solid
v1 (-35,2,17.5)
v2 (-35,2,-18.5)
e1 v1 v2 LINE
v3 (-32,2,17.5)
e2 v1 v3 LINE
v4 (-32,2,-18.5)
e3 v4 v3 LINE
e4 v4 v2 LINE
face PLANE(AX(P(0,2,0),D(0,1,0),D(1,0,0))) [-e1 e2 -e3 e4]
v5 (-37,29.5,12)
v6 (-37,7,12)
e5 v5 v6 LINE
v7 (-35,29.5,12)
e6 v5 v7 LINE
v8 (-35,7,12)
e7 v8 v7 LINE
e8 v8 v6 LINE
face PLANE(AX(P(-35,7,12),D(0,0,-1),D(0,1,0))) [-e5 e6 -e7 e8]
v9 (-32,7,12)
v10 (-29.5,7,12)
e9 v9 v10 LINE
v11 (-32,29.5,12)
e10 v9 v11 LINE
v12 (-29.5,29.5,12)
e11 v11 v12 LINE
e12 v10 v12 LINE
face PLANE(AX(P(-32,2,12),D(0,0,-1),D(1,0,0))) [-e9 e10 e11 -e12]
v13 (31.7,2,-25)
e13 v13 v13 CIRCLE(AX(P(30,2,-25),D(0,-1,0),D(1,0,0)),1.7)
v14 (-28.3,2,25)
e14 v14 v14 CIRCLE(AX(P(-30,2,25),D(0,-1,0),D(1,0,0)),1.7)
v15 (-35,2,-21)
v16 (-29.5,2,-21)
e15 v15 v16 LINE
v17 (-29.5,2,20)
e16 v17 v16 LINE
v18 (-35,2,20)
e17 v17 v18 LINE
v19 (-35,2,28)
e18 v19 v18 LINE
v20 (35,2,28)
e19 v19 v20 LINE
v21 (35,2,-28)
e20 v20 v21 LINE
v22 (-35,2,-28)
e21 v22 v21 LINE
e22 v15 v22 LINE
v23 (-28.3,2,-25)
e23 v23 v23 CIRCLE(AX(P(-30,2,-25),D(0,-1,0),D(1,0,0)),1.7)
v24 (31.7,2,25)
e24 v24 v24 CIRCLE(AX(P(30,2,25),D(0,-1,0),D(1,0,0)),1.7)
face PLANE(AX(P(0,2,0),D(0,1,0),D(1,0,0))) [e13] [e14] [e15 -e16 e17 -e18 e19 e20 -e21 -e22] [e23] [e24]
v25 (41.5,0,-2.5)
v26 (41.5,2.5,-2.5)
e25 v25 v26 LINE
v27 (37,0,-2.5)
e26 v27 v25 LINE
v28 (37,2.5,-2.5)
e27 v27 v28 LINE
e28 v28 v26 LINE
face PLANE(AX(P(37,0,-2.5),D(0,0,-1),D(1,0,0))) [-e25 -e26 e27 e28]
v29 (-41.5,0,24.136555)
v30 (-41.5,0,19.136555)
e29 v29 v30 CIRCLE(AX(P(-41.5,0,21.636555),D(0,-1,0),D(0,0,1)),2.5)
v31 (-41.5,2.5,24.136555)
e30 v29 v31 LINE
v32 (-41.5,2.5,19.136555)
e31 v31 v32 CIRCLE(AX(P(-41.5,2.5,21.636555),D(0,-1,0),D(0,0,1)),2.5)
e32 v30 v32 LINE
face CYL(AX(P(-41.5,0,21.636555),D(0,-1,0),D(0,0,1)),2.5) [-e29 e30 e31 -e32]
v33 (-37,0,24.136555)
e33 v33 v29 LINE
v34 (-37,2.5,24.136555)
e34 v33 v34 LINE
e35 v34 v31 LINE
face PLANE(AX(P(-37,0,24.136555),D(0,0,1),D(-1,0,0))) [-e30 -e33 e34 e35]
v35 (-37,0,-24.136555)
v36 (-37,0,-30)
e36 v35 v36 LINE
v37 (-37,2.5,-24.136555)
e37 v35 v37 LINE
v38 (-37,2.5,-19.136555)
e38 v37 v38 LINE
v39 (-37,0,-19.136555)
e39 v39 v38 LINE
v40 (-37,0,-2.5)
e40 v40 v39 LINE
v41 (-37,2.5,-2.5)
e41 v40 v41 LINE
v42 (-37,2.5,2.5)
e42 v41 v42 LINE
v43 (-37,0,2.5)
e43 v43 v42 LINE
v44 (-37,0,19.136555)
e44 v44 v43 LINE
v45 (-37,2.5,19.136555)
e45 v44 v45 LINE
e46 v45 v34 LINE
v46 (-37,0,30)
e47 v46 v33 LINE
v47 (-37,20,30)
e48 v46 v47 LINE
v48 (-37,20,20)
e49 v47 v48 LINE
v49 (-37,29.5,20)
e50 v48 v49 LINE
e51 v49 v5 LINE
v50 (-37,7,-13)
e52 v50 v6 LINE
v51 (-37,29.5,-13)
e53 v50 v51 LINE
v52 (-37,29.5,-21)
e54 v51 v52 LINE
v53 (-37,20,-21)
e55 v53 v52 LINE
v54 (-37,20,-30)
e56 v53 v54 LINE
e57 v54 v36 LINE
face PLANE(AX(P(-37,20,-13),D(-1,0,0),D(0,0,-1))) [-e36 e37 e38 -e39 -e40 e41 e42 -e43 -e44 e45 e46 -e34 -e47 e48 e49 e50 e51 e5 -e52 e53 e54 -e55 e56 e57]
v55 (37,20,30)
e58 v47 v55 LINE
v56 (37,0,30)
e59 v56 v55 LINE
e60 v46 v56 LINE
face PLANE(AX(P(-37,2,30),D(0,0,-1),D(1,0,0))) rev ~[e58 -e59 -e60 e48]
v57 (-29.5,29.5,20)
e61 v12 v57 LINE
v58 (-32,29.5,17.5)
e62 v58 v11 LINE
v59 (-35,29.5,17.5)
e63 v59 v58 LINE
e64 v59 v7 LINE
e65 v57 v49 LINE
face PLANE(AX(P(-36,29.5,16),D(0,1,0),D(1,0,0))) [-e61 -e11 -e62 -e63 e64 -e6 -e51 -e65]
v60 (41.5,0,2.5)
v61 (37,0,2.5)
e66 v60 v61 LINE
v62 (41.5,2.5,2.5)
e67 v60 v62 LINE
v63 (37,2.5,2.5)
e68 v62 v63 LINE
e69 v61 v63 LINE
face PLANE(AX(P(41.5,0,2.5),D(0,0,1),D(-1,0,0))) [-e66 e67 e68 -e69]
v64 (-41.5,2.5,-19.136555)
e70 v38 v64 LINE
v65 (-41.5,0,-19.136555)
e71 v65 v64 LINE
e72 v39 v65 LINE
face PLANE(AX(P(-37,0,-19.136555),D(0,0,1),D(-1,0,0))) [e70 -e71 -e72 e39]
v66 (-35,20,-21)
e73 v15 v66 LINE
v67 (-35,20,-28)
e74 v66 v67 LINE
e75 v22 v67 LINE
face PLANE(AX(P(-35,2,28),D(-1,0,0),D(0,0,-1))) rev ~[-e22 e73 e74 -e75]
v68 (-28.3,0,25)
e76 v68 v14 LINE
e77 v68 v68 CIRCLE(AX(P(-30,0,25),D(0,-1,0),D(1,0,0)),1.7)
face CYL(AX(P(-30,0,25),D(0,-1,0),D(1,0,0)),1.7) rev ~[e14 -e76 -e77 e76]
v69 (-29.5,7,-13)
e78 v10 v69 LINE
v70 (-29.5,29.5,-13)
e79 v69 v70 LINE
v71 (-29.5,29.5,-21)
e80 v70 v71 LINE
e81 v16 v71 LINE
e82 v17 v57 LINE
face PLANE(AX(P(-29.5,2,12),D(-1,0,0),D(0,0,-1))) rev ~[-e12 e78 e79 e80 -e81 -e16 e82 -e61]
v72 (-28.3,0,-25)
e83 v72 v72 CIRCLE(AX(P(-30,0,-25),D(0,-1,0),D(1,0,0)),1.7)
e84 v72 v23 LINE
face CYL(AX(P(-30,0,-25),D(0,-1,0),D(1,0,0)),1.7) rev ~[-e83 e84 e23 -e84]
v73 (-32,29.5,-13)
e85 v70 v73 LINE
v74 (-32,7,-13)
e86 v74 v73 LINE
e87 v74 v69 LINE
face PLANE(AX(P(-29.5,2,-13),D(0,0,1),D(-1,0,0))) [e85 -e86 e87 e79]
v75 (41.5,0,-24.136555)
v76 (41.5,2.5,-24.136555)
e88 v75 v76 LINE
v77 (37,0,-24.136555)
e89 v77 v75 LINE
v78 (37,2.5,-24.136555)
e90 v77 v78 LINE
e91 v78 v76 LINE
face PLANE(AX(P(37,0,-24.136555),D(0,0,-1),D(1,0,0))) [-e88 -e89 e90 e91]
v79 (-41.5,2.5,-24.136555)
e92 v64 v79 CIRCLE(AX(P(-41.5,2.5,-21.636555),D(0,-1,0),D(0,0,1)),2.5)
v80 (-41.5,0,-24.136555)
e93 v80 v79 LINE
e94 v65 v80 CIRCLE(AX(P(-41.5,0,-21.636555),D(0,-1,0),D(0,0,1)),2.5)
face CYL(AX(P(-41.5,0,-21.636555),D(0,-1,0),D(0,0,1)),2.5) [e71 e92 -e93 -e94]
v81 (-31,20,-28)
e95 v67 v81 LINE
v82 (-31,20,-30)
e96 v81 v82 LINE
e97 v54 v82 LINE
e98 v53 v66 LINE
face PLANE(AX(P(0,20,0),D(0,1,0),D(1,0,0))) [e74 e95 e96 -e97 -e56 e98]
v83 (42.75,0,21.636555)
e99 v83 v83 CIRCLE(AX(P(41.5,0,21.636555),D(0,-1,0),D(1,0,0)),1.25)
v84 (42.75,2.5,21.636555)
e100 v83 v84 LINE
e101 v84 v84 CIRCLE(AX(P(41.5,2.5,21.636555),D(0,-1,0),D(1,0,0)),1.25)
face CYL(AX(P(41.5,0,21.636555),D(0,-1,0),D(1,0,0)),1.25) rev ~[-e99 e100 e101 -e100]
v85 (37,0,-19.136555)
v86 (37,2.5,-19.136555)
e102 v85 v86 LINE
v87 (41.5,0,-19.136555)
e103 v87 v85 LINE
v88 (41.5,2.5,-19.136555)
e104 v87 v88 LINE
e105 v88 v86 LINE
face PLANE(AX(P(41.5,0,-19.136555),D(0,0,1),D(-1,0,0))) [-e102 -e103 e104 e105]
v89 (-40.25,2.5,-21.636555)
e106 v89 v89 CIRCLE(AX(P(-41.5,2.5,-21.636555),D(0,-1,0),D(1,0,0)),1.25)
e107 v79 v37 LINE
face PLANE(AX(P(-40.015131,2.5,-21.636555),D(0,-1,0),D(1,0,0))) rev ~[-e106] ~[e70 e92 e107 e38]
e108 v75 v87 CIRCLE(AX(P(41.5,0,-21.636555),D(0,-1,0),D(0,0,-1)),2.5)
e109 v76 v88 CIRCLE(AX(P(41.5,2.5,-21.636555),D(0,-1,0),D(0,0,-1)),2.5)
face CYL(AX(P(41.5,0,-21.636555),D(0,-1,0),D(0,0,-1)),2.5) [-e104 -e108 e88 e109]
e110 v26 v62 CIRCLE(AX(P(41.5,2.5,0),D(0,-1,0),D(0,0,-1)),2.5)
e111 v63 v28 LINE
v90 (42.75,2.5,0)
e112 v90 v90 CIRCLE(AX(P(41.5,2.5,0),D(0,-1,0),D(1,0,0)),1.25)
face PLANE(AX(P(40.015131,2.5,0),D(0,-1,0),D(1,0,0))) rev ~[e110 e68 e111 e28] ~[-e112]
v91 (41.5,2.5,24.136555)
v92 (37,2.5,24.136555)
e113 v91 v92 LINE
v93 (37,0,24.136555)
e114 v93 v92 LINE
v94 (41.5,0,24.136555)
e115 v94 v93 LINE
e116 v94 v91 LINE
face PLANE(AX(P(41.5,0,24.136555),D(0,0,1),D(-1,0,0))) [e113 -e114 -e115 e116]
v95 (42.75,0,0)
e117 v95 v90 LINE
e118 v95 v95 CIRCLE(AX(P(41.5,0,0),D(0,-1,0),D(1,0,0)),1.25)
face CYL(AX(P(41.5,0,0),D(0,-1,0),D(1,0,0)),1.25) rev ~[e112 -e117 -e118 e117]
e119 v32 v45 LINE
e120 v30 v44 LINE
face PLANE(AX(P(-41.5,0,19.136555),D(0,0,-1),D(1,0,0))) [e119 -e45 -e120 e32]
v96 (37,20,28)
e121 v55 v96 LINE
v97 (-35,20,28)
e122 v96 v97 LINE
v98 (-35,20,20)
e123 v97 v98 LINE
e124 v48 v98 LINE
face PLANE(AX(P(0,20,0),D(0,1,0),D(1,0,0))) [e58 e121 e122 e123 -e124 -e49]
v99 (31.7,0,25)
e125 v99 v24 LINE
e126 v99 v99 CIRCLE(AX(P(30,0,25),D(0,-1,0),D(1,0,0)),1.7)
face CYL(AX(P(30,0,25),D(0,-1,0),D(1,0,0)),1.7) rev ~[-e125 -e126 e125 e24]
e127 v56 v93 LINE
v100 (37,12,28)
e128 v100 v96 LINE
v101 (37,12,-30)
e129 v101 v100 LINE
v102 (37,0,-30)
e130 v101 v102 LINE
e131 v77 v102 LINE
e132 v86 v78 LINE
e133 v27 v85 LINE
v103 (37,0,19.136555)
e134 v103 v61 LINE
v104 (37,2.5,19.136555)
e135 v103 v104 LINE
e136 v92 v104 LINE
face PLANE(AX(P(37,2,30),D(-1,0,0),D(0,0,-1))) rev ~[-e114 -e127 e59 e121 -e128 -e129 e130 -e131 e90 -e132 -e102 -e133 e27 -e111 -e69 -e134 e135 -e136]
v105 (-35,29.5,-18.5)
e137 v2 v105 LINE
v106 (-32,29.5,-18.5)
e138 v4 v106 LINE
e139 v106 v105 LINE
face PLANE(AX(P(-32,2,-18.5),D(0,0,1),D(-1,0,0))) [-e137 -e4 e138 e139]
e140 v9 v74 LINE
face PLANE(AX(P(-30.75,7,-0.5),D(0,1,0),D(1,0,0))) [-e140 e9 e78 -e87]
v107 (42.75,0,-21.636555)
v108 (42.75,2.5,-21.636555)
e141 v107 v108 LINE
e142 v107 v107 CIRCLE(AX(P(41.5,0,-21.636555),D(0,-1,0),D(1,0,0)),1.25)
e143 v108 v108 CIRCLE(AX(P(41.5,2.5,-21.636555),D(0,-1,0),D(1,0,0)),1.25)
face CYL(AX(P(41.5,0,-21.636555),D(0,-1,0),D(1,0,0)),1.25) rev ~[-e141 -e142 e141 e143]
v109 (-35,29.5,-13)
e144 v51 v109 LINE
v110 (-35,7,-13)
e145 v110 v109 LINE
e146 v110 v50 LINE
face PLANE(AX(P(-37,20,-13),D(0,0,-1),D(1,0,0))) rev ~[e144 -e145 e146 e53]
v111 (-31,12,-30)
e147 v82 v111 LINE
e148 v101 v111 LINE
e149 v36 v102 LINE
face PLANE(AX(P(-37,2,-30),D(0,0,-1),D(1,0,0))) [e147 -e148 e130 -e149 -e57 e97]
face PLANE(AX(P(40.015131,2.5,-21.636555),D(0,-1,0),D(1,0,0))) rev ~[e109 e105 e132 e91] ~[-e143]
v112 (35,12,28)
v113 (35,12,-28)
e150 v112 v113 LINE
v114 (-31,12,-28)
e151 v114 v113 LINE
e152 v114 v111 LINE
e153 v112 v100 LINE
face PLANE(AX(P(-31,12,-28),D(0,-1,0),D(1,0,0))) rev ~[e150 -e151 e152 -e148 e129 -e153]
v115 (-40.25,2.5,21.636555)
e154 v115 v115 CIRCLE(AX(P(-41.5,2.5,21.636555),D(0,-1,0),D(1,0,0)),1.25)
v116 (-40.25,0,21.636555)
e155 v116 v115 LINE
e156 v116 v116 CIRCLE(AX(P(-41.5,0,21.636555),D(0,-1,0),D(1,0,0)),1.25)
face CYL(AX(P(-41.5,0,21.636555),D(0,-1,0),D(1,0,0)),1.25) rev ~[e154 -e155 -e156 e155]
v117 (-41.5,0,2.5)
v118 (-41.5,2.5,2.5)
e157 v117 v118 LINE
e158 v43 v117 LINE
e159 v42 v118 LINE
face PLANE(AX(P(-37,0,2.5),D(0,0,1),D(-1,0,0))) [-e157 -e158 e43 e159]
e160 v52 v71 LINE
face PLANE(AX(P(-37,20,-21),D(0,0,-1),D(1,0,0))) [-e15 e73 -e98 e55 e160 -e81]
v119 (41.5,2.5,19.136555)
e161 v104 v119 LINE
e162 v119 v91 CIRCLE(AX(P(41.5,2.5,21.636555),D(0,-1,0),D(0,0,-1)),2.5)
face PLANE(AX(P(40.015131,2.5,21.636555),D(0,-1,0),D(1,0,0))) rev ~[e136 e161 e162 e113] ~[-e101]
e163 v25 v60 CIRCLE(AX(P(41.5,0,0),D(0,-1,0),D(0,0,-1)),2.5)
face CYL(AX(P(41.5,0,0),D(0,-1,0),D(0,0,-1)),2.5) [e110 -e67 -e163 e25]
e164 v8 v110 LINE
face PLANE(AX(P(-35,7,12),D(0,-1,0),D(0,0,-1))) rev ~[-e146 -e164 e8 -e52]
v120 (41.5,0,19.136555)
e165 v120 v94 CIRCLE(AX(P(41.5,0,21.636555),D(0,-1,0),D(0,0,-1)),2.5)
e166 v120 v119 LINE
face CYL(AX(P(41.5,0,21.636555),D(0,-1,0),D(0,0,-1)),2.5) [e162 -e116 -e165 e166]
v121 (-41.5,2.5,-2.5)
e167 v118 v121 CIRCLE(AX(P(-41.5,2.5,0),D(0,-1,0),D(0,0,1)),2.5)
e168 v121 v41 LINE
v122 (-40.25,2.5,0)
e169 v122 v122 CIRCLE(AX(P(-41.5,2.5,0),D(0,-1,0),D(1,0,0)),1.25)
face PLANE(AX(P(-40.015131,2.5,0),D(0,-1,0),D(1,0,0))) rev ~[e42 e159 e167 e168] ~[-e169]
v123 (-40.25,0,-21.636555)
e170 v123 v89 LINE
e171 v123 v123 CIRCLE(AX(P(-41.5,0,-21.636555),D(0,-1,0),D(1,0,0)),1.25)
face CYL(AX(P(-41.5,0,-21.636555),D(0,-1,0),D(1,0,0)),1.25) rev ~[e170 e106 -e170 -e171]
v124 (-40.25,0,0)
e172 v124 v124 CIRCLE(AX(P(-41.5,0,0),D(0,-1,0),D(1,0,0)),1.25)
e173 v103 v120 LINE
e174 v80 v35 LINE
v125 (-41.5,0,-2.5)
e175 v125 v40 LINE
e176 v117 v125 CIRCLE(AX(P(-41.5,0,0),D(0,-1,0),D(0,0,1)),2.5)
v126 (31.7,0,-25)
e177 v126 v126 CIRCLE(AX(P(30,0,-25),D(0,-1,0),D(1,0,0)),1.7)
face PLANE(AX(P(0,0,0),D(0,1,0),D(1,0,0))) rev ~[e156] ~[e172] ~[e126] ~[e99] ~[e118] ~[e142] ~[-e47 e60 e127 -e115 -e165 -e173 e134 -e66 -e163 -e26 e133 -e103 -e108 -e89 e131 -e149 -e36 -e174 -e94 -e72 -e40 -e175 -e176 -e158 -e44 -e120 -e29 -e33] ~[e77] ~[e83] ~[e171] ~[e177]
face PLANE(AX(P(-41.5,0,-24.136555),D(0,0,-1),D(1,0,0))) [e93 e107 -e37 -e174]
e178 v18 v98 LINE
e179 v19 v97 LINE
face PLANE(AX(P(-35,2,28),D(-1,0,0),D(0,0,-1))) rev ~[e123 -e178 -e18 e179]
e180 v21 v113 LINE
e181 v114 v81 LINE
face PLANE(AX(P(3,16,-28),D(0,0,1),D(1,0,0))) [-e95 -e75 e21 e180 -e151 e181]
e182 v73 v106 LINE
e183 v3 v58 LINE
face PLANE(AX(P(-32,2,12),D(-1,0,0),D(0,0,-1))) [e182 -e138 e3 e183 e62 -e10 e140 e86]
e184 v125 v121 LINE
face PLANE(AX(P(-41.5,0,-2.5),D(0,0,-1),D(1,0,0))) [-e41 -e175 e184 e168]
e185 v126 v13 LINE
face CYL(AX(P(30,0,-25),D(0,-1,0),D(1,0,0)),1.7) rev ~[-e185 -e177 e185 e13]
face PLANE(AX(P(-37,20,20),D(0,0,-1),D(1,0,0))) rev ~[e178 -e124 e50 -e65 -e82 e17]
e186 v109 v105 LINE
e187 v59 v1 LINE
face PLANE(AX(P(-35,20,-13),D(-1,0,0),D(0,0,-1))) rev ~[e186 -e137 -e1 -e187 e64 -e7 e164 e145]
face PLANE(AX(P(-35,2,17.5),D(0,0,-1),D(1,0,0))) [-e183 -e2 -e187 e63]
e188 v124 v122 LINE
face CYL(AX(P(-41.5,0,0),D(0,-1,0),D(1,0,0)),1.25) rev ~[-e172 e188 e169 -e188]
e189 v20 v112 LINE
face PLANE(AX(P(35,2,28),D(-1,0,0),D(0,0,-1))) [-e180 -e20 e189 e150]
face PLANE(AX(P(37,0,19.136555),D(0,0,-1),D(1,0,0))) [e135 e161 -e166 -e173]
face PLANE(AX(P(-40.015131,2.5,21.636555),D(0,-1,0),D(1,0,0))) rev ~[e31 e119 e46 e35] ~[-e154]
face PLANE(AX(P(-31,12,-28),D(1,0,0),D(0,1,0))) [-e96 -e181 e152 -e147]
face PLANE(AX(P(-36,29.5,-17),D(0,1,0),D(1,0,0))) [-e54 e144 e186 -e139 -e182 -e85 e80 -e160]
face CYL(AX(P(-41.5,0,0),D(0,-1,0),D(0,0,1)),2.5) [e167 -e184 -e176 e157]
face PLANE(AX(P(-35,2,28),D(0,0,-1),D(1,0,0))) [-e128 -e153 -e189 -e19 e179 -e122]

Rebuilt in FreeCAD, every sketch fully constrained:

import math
import FreeCAD as App
import Part
import Sketcher
Q = App.Units.Quantity

doc = App.newDocument("Part")
body = doc.addObject("PartDesign::Body", "Body")

sketch1 = doc.addObject("Sketcher::SketchObject", "Sketch")
body.addObject(sketch1)
sketch1.AttachmentSupport = (doc.XZ_Plane, [""])
sketch1.MapMode = "FlatFace"
sketch1.addGeometry([
    Part.LineSegment(App.Vector(-37, -30, 0), App.Vector(-37, 30, 0)),
    Part.LineSegment(App.Vector(-37, 30, 0), App.Vector(37, 30, 0)),
    Part.LineSegment(App.Vector(37, 30, 0), App.Vector(37, -30, 0)),
    Part.LineSegment(App.Vector(37, -30, 0), App.Vector(-37, -30, 0)),
], False)
sketch1.addConstraint([
    Sketcher.Constraint("Coincident", 0, 2, 1, 1),
    Sketcher.Constraint("Coincident", 1, 2, 2, 1),
    Sketcher.Constraint("Coincident", 2, 2, 3, 1),
    Sketcher.Constraint("Coincident", 3, 2, 0, 1),
    Sketcher.Constraint("Vertical", 0),
    Sketcher.Constraint("Horizontal", 1),
    Sketcher.Constraint("Vertical", 2),
    Sketcher.Constraint("Horizontal", 3),
    Sketcher.Constraint("Symmetric", 0, 2, 2, 2, -1, 1),
    Sketcher.Constraint("DistanceX", 1, 1, 1, 2, Q("74 mm")),
    Sketcher.Constraint("DistanceY", 0, 1, 0, 2, Q("60 mm")),
])
pad1 = doc.addObject("PartDesign::Pad", "Pad")
body.addObject(pad1)
pad1.Profile = sketch1
pad1.Length = 2
pad1.Reversed = True

sketch2 = doc.addObject("Sketcher::SketchObject", "Sketch001")
body.addObject(sketch2)
sketch2.AttachmentSupport = (doc.XZ_Plane, [""])
sketch2.MapMode = "FlatFace"
sketch2.AttachmentOffset = App.Placement(App.Vector(0, 0, -2), App.Rotation())
sketch2.addGeometry([
    Part.LineSegment(App.Vector(-37, -30, 0), App.Vector(-37, 30, 0)),
    Part.LineSegment(App.Vector(-37, 30, 0), App.Vector(37, 30, 0)),
    Part.LineSegment(App.Vector(37, 30, 0), App.Vector(37, -30, 0)),
    Part.LineSegment(App.Vector(37, -30, 0), App.Vector(-37, -30, 0)),
    Part.LineSegment(App.Vector(35, 28, 0), App.Vector(-35, 28, 0)),
    Part.LineSegment(App.Vector(-35, 28, 0), App.Vector(-35, -28, 0)),
    Part.LineSegment(App.Vector(-35, -28, 0), App.Vector(35, -28, 0)),
    Part.LineSegment(App.Vector(35, -28, 0), App.Vector(35, 28, 0)),
], False)
sketch2.addConstraint([
    Sketcher.Constraint("Coincident", 0, 2, 1, 1),
    Sketcher.Constraint("Coincident", 1, 2, 2, 1),
    Sketcher.Constraint("Coincident", 2, 2, 3, 1),
    Sketcher.Constraint("Coincident", 3, 2, 0, 1),
    Sketcher.Constraint("Coincident", 4, 2, 5, 1),
    Sketcher.Constraint("Coincident", 5, 2, 6, 1),
    Sketcher.Constraint("Coincident", 6, 2, 7, 1),
    Sketcher.Constraint("Coincident", 7, 2, 4, 1),
    Sketcher.Constraint("Vertical", 0),
    Sketcher.Constraint("Horizontal", 1),
    Sketcher.Constraint("Vertical", 2),
    Sketcher.Constraint("Horizontal", 3),
    Sketcher.Constraint("Horizontal", 4),
    Sketcher.Constraint("Vertical", 5),
    Sketcher.Constraint("Horizontal", 6),
    Sketcher.Constraint("Vertical", 7),
    Sketcher.Constraint("Symmetric", 0, 2, 2, 2, -1, 1),
    Sketcher.Constraint("Symmetric", 4, 2, 6, 2, -1, 1),
    Sketcher.Constraint("DistanceX", 1, 1, 1, 2, Q("74 mm")),
    Sketcher.Constraint("DistanceX", 4, 2, 4, 1, Q("70 mm")),
    Sketcher.Constraint("DistanceY", 0, 1, 0, 2, Q("60 mm")),
    Sketcher.Constraint("DistanceY", 5, 2, 5, 1, Q("56 mm")),
])
pad2 = doc.addObject("PartDesign::Pad", "Pad001")
body.addObject(pad2)
pad2.Profile = sketch2
pad2.Length = 18
pad2.Reversed = True

sketch3 = doc.addObject("Sketcher::SketchObject", "Sketch002")
body.addObject(sketch3)
sketch3.AttachmentSupport = (doc.XZ_Plane, [""])
sketch3.MapMode = "FlatFace"
sketch3.addGeometry([
    Part.Circle(App.Vector(-30, 25, 0), App.Vector(0, 0, 1), 1.7),
    Part.Circle(App.Vector(30, 25, 0), App.Vector(0, 0, 1), 1.7),
    Part.Circle(App.Vector(30, -25, 0), App.Vector(0, 0, 1), 1.7),
    Part.Circle(App.Vector(-30, -25, 0), App.Vector(0, 0, 1), 1.7),
], False)
sketch3.addConstraint([
    Sketcher.Constraint("Equal", 0, 1),
    Sketcher.Constraint("Equal", 1, 2),
    Sketcher.Constraint("Equal", 2, 3),
    Sketcher.Constraint("Symmetric", 0, 3, 2, 3, -1, 1),
    Sketcher.Constraint("Symmetric", 1, 3, 3, 3, -1, 1),
    Sketcher.Constraint("Symmetric", 0, 3, 1, 3, -2),
    Sketcher.Constraint("Diameter", 0, Q("3.4 mm")),
    Sketcher.Constraint("DistanceX", 0, 3, -1, 1, Q("30 mm")),
    Sketcher.Constraint("DistanceY", -1, 1, 0, 3, Q("25 mm")),
])
pocket1 = doc.addObject("PartDesign::Pocket", "Pocket")
body.addObject(pocket1)
pocket1.Profile = sketch3
pocket1.Length = 8

sketch4 = doc.addObject("Sketcher::SketchObject", "Sketch003")
body.addObject(sketch4)
sketch4.AttachmentSupport = (doc.XY_Plane, [""])
sketch4.MapMode = "FlatFace"
sketch4.AttachmentOffset = App.Placement(App.Vector(0, 0, -28), App.Rotation())
sketch4.addGeometry([
    Part.LineSegment(App.Vector(-31, 20, 0), App.Vector(-31, 12, 0)),
    Part.LineSegment(App.Vector(-31, 12, 0), App.Vector(37, 12, 0)),
    Part.LineSegment(App.Vector(37, 12, 0), App.Vector(37, 20, 0)),
    Part.LineSegment(App.Vector(37, 20, 0), App.Vector(-31, 20, 0)),
], False)
sketch4.addConstraint([
    Sketcher.Constraint("Coincident", 0, 2, 1, 1),
    Sketcher.Constraint("Coincident", 1, 2, 2, 1),
    Sketcher.Constraint("Coincident", 2, 2, 3, 1),
    Sketcher.Constraint("Coincident", 3, 2, 0, 1),
    Sketcher.Constraint("Vertical", 0),
    Sketcher.Constraint("Horizontal", 1),
    Sketcher.Constraint("Vertical", 2),
    Sketcher.Constraint("Horizontal", 3),
    Sketcher.Constraint("DistanceX", 1, 1, 1, 2, Q("68 mm")),
    Sketcher.Constraint("DistanceY", 0, 2, 0, 1, Q("8 mm")),
    Sketcher.Constraint("DistanceX", 0, 2, -1, 1, Q("31 mm")),
    Sketcher.Constraint("DistanceY", -1, 1, 0, 2, Q("12 mm")),
])
pocket2 = doc.addObject("PartDesign::Pocket", "Pocket001")
body.addObject(pocket2)
pocket2.Profile = sketch4
pocket2.Type = "TwoLengths"
pocket2.Length = 56
pocket2.Length2 = 17
pocket2.Reversed = True

sketch5 = doc.addObject("Sketcher::SketchObject", "Sketch004")
body.addObject(sketch5)
sketch5.AttachmentSupport = (doc.XZ_Plane, [""])
sketch5.MapMode = "FlatFace"
sketch5.AttachmentOffset = App.Placement(App.Vector(0, 0, -2), App.Rotation())
sketch5.addGeometry([
    Part.LineSegment(App.Vector(-29.5, -21, 0), App.Vector(-35, -21, 0)),
    Part.LineSegment(App.Vector(-35, -21, 0), App.Vector(-35, -18.5, 0)),
    Part.LineSegment(App.Vector(-35, -18.5, 0), App.Vector(-32, -18.5, 0)),
    Part.LineSegment(App.Vector(-32, -18.5, 0), App.Vector(-32, -13, 0)),
    Part.LineSegment(App.Vector(-32, -13, 0), App.Vector(-29.5, -13, 0)),
    Part.LineSegment(App.Vector(-29.5, -13, 0), App.Vector(-29.5, -21, 0)),
    Part.LineSegment(App.Vector(-29.5, 20, 0), App.Vector(-29.5, 12, 0)),
    Part.LineSegment(App.Vector(-29.5, 12, 0), App.Vector(-32, 12, 0)),
    Part.LineSegment(App.Vector(-32, 12, 0), App.Vector(-32, 17.5, 0)),
    Part.LineSegment(App.Vector(-32, 17.5, 0), App.Vector(-35, 17.5, 0)),
    Part.LineSegment(App.Vector(-35, 17.5, 0), App.Vector(-35, 20, 0)),
    Part.LineSegment(App.Vector(-35, 20, 0), App.Vector(-29.5, 20, 0)),
], False)
sketch5.addConstraint([
    Sketcher.Constraint("Coincident", 0, 2, 1, 1),
    Sketcher.Constraint("Coincident", 1, 2, 2, 1),
    Sketcher.Constraint("Coincident", 2, 2, 3, 1),
    Sketcher.Constraint("Coincident", 3, 2, 4, 1),
    Sketcher.Constraint("Coincident", 4, 2, 5, 1),
    Sketcher.Constraint("Coincident", 5, 2, 0, 1),
    Sketcher.Constraint("Coincident", 6, 2, 7, 1),
    Sketcher.Constraint("Coincident", 7, 2, 8, 1),
    Sketcher.Constraint("Coincident", 8, 2, 9, 1),
    Sketcher.Constraint("Coincident", 9, 2, 10, 1),
    Sketcher.Constraint("Coincident", 10, 2, 11, 1),
    Sketcher.Constraint("Coincident", 11, 2, 6, 1),
    Sketcher.Constraint("Horizontal", 0),
    Sketcher.Constraint("Vertical", 1),
    Sketcher.Constraint("Horizontal", 2),
    Sketcher.Constraint("Vertical", 3),
    Sketcher.Constraint("Horizontal", 4),
    Sketcher.Constraint("Vertical", 5),
    Sketcher.Constraint("Vertical", 6),
    Sketcher.Constraint("Horizontal", 7),
    Sketcher.Constraint("Vertical", 8),
    Sketcher.Constraint("Horizontal", 9),
    Sketcher.Constraint("Vertical", 10),
    Sketcher.Constraint("Horizontal", 11),
    Sketcher.Constraint("Vertical", 5, 2, 6, 2),
    Sketcher.Constraint("Vertical", 3, 2, 7, 2),
    Sketcher.Constraint("Vertical", 1, 2, 9, 2),
    Sketcher.Constraint("Equal", 7, 1),
    Sketcher.Constraint("Equal", 11, 3),
    Sketcher.Constraint("Equal", 5, 6),
    Sketcher.Constraint("Equal", 3, 8),
    Sketcher.Constraint("DistanceX", 2, 1, 2, 2, Q("3 mm")),
    Sketcher.Constraint("DistanceY", 5, 2, 5, 1, Q("8 mm")),
    Sketcher.Constraint("DistanceX", 0, 2, -1, 1, Q("35 mm")),
    Sketcher.Constraint("DistanceY", 0, 2, -1, 1, Q("21 mm")),
    Sketcher.Constraint("DistanceY", -1, 1, 6, 2, Q("12 mm")),
])
pad3 = doc.addObject("PartDesign::Pad", "Pad002")
body.addObject(pad3)
pad3.Profile = sketch5
pad3.Length = 27.5
pad3.Reversed = True

sketch6 = doc.addObject("Sketcher::SketchObject", "Sketch005")
body.addObject(sketch6)
sketch6.AttachmentSupport = (doc.XZ_Plane, [""])
sketch6.MapMode = "FlatFace"
sketch6.AttachmentOffset = App.Placement(App.Vector(0, 0, -2), App.Rotation())
sketch6.addGeometry([
    Part.LineSegment(App.Vector(-32, -13, 0), App.Vector(-32, 12, 0)),
    Part.LineSegment(App.Vector(-32, 12, 0), App.Vector(-29.5, 12, 0)),
    Part.LineSegment(App.Vector(-29.5, 12, 0), App.Vector(-29.5, -13, 0)),
    Part.LineSegment(App.Vector(-29.5, -13, 0), App.Vector(-32, -13, 0)),
], False)
sketch6.addConstraint([
    Sketcher.Constraint("Coincident", 0, 2, 1, 1),
    Sketcher.Constraint("Coincident", 1, 2, 2, 1),
    Sketcher.Constraint("Coincident", 2, 2, 3, 1),
    Sketcher.Constraint("Coincident", 3, 2, 0, 1),
    Sketcher.Constraint("Vertical", 0),
    Sketcher.Constraint("Horizontal", 1),
    Sketcher.Constraint("Vertical", 2),
    Sketcher.Constraint("Horizontal", 3),
    Sketcher.Constraint("DistanceY", 0, 1, 0, 2, Q("25 mm")),
    Sketcher.Constraint("DistanceX", 1, 1, 1, 2, Q("2.5 mm")),
    Sketcher.Constraint("DistanceX", 0, 2, -1, 1, Q("32 mm")),
    Sketcher.Constraint("DistanceY", -1, 1, 0, 2, Q("12 mm")),
])
pad4 = doc.addObject("PartDesign::Pad", "Pad003")
body.addObject(pad4)
pad4.Profile = sketch6
pad4.Length = 5
pad4.Reversed = True

sketch7 = doc.addObject("Sketcher::SketchObject", "Sketch006")
body.addObject(sketch7)
sketch7.AttachmentSupport = (doc.YZ_Plane, [""])
sketch7.MapMode = "FlatFace"
sketch7.AttachmentOffset = App.Placement(App.Vector(0, 0, -35), App.Rotation())
sketch7.addGeometry([
    Part.LineSegment(App.Vector(20, 12, 0), App.Vector(7, 12, 0)),
    Part.LineSegment(App.Vector(7, 12, 0), App.Vector(7, -13, 0)),
    Part.LineSegment(App.Vector(7, -13, 0), App.Vector(20, -13, 0)),
    Part.LineSegment(App.Vector(20, -13, 0), App.Vector(20, 12, 0)),
], False)
sketch7.addConstraint([
    Sketcher.Constraint("Coincident", 0, 2, 1, 1),
    Sketcher.Constraint("Coincident", 1, 2, 2, 1),
    Sketcher.Constraint("Coincident", 2, 2, 3, 1),
    Sketcher.Constraint("Coincident", 3, 2, 0, 1),
    Sketcher.Constraint("Horizontal", 0),
    Sketcher.Constraint("Vertical", 1),
    Sketcher.Constraint("Horizontal", 2),
    Sketcher.Constraint("Vertical", 3),
    Sketcher.Constraint("DistanceX", 0, 2, 0, 1, Q("13 mm")),
    Sketcher.Constraint("DistanceY", 1, 2, 1, 1, Q("25 mm")),
    Sketcher.Constraint("DistanceX", -1, 1, 0, 2, Q("7 mm")),
    Sketcher.Constraint("DistanceY", -1, 1, 0, 2, Q("12 mm")),
])
pocket3 = doc.addObject("PartDesign::Pocket", "Pocket002")
body.addObject(pocket3)
pocket3.Profile = sketch7
pocket3.Length = 5

sketch8 = doc.addObject("Sketcher::SketchObject", "Sketch007")
body.addObject(sketch8)
sketch8.AttachmentSupport = (doc.XZ_Plane, [""])
sketch8.MapMode = "FlatFace"
sketch8.AttachmentOffset = App.Placement(App.Vector(0, 0, -20), App.Rotation())
sketch8.addGeometry([
    Part.LineSegment(App.Vector(-37, -21, 0), App.Vector(-37, -13, 0)),
    Part.LineSegment(App.Vector(-37, -13, 0), App.Vector(-35, -13, 0)),
    Part.LineSegment(App.Vector(-35, -13, 0), App.Vector(-35, -21, 0)),
    Part.LineSegment(App.Vector(-35, -21, 0), App.Vector(-37, -21, 0)),
    Part.LineSegment(App.Vector(-37, 12, 0), App.Vector(-37, 20, 0)),
    Part.LineSegment(App.Vector(-37, 20, 0), App.Vector(-35, 20, 0)),
    Part.LineSegment(App.Vector(-35, 20, 0), App.Vector(-35, 12, 0)),
    Part.LineSegment(App.Vector(-35, 12, 0), App.Vector(-37, 12, 0)),
], False)
sketch8.addConstraint([
    Sketcher.Constraint("Coincident", 0, 2, 1, 1),
    Sketcher.Constraint("Coincident", 1, 2, 2, 1),
    Sketcher.Constraint("Coincident", 2, 2, 3, 1),
    Sketcher.Constraint("Coincident", 3, 2, 0, 1),
    Sketcher.Constraint("Coincident", 4, 2, 5, 1),
    Sketcher.Constraint("Coincident", 5, 2, 6, 1),
    Sketcher.Constraint("Coincident", 6, 2, 7, 1),
    Sketcher.Constraint("Coincident", 7, 2, 4, 1),
    Sketcher.Constraint("Vertical", 0),
    Sketcher.Constraint("Horizontal", 1),
    Sketcher.Constraint("Vertical", 2),
    Sketcher.Constraint("Horizontal", 3),
    Sketcher.Constraint("Vertical", 4),
    Sketcher.Constraint("Horizontal", 5),
    Sketcher.Constraint("Vertical", 6),
    Sketcher.Constraint("Horizontal", 7),
    Sketcher.Constraint("Vertical", 3, 2, 4, 2),
    Sketcher.Constraint("Vertical", 2, 2, 5, 2),
    Sketcher.Constraint("Equal", 2, 4),
    Sketcher.Constraint("DistanceX", 1, 1, 1, 2, Q("2 mm")),
    Sketcher.Constraint("DistanceY", 0, 1, 0, 2, Q("8 mm")),
    Sketcher.Constraint("DistanceX", 0, 2, -1, 1, Q("37 mm")),
    Sketcher.Constraint("DistanceY", 0, 2, -1, 1, Q("13 mm")),
    Sketcher.Constraint("DistanceY", -1, 1, 4, 2, Q("20 mm")),
])
pad5 = doc.addObject("PartDesign::Pad", "Pad004")
body.addObject(pad5)
pad5.Profile = sketch8
pad5.Length = 9.5
pad5.Reversed = True

sketch9 = doc.addObject("Sketcher::SketchObject", "Sketch008")
body.addObject(sketch9)
sketch9.AttachmentSupport = (doc.XZ_Plane, [""])
sketch9.MapMode = "FlatFace"
sketch9.addGeometry([
    Part.LineSegment(App.Vector(-37, -24.1, 0), App.Vector(-37, -19.1, 0)),
    Part.LineSegment(App.Vector(-37, -19.1, 0), App.Vector(-41.5, -19.1, 0)),
    Part.ArcOfCircle(Part.Circle(App.Vector(-41.5, -21.6, 0), App.Vector(0, 0, 1), 2.5), math.radians(90), math.radians(270)),
    Part.LineSegment(App.Vector(-41.5, -24.1, 0), App.Vector(-37, -24.1, 0)),
    Part.Circle(App.Vector(-41.5, -21.6, 0), App.Vector(0, 0, 1), 1.2),
    Part.LineSegment(App.Vector(-37, -2.5, 0), App.Vector(-37, 2.5, 0)),
    Part.LineSegment(App.Vector(-37, 2.5, 0), App.Vector(-41.5, 2.5, 0)),
    Part.ArcOfCircle(Part.Circle(App.Vector(-41.5, 0, 0), App.Vector(0, 0, 1), 2.5), math.radians(90), math.radians(270)),
    Part.LineSegment(App.Vector(-41.5, -2.5, 0), App.Vector(-37, -2.5, 0)),
    Part.Circle(App.Vector(-41.5, 0, 0), App.Vector(0, 0, 1), 1.2),
    Part.LineSegment(App.Vector(-37, 19.1, 0), App.Vector(-37, 24.1, 0)),
    Part.LineSegment(App.Vector(-37, 24.1, 0), App.Vector(-41.5, 24.1, 0)),
    Part.ArcOfCircle(Part.Circle(App.Vector(-41.5, 21.6, 0), App.Vector(0, 0, 1), 2.5), math.radians(90), math.radians(270)),
    Part.LineSegment(App.Vector(-41.5, 19.1, 0), App.Vector(-37, 19.1, 0)),
    Part.Circle(App.Vector(-41.5, 21.6, 0), App.Vector(0, 0, 1), 1.2),
    Part.LineSegment(App.Vector(37, 24.1, 0), App.Vector(37, 19.1, 0)),
    Part.LineSegment(App.Vector(37, 19.1, 0), App.Vector(41.5, 19.1, 0)),
    Part.ArcOfCircle(Part.Circle(App.Vector(41.5, 21.6, 0), App.Vector(0, 0, 1), 2.5), math.radians(-90), math.radians(90)),
    Part.LineSegment(App.Vector(41.5, 24.1, 0), App.Vector(37, 24.1, 0)),
    Part.Circle(App.Vector(41.5, 21.6, 0), App.Vector(0, 0, 1), 1.2),
    Part.LineSegment(App.Vector(37, 2.5, 0), App.Vector(37, -2.5, 0)),
    Part.LineSegment(App.Vector(37, -2.5, 0), App.Vector(41.5, -2.5, 0)),
    Part.ArcOfCircle(Part.Circle(App.Vector(41.5, 0, 0), App.Vector(0, 0, 1), 2.5), math.radians(-90), math.radians(90)),
    Part.LineSegment(App.Vector(41.5, 2.5, 0), App.Vector(37, 2.5, 0)),
    Part.Circle(App.Vector(41.5, 0, 0), App.Vector(0, 0, 1), 1.2),
    Part.LineSegment(App.Vector(37, -19.1, 0), App.Vector(37, -24.1, 0)),
    Part.LineSegment(App.Vector(37, -24.1, 0), App.Vector(41.5, -24.1, 0)),
    Part.ArcOfCircle(Part.Circle(App.Vector(41.5, -21.6, 0), App.Vector(0, 0, 1), 2.5), math.radians(-90), math.radians(90)),
    Part.LineSegment(App.Vector(41.5, -19.1, 0), App.Vector(37, -19.1, 0)),
    Part.Circle(App.Vector(41.5, -21.6, 0), App.Vector(0, 0, 1), 1.2),
], False)
sketch9.addConstraint([
    Sketcher.Constraint("Coincident", 0, 2, 1, 1),
    Sketcher.Constraint("Tangent", 1, 2, 2, 1),
    Sketcher.Constraint("Tangent", 2, 2, 3, 1),
    Sketcher.Constraint("Coincident", 3, 2, 0, 1),
    Sketcher.Constraint("Coincident", 5, 2, 6, 1),
    Sketcher.Constraint("Tangent", 6, 2, 7, 1),
    Sketcher.Constraint("Tangent", 7, 2, 8, 1),
    Sketcher.Constraint("Coincident", 8, 2, 5, 1),
    Sketcher.Constraint("Coincident", 10, 2, 11, 1),
    Sketcher.Constraint("Tangent", 11, 2, 12, 1),
    Sketcher.Constraint("Tangent", 12, 2, 13, 1),
    Sketcher.Constraint("Coincident", 13, 2, 10, 1),
    Sketcher.Constraint("Coincident", 15, 2, 16, 1),
    Sketcher.Constraint("Tangent", 16, 2, 17, 1),
    Sketcher.Constraint("Tangent", 17, 2, 18, 1),
    Sketcher.Constraint("Coincident", 18, 2, 15, 1),
    Sketcher.Constraint("Coincident", 20, 2, 21, 1),
    Sketcher.Constraint("Tangent", 21, 2, 22, 1),
    Sketcher.Constraint("Tangent", 22, 2, 23, 1),
    Sketcher.Constraint("Coincident", 23, 2, 20, 1),
    Sketcher.Constraint("Coincident", 25, 2, 26, 1),
    Sketcher.Constraint("Tangent", 26, 2, 27, 1),
    Sketcher.Constraint("Tangent", 27, 2, 28, 1),
    Sketcher.Constraint("Coincident", 28, 2, 25, 1),
    Sketcher.Constraint("Vertical", 0),
    Sketcher.Constraint("Horizontal", 1),
    Sketcher.Constraint("Horizontal", 3),
    Sketcher.Constraint("Vertical", 5),
    Sketcher.Constraint("Horizontal", 6),
    Sketcher.Constraint("Horizontal", 8),
    Sketcher.Constraint("Vertical", 10),
    Sketcher.Constraint("Horizontal", 11),
    Sketcher.Constraint("Horizontal", 13),
    Sketcher.Constraint("Vertical", 15),
    Sketcher.Constraint("Horizontal", 16),
    Sketcher.Constraint("Horizontal", 18),
    Sketcher.Constraint("Vertical", 20),
    Sketcher.Constraint("Horizontal", 21),
    Sketcher.Constraint("Horizontal", 23),
    Sketcher.Constraint("Vertical", 25),
    Sketcher.Constraint("Horizontal", 26),
    Sketcher.Constraint("Horizontal", 28),
    Sketcher.Constraint("Coincident", 4, 3, 2, 3),
    Sketcher.Constraint("Coincident", 9, 3, 7, 3),
    Sketcher.Constraint("Coincident", 14, 3, 12, 3),
    Sketcher.Constraint("Coincident", 19, 3, 17, 3),
    Sketcher.Constraint("Coincident", 24, 3, 22, 3),
    Sketcher.Constraint("Coincident", 29, 3, 27, 3),
    Sketcher.Constraint("Equal", 2, 7),
    Sketcher.Constraint("Equal", 4, 9),
    Sketcher.Constraint("Equal", 7, 12),
    Sketcher.Constraint("Equal", 9, 14),
    Sketcher.Constraint("Equal", 12, 17),
    Sketcher.Constraint("Equal", 14, 19),
    Sketcher.Constraint("Equal", 17, 22),
    Sketcher.Constraint("Equal", 19, 24),
    Sketcher.Constraint("Equal", 22, 27),
    Sketcher.Constraint("Equal", 24, 29),
    Sketcher.Constraint("Symmetric", 2, 3, 17, 3, -1, 1),
    Sketcher.Constraint("Symmetric", 7, 3, 22, 3, -1, 1),
    Sketcher.Constraint("Symmetric", 12, 3, 27, 3, -1, 1),
    Sketcher.Constraint("Symmetric", 12, 3, 17, 3, -2),
    Sketcher.Constraint("Symmetric", 8, 2, 20, 2, -2),
    Sketcher.Constraint("Vertical", 4, 3, 7, 3),
    Sketcher.Constraint("Vertical", 3, 2, 5, 2),
    Sketcher.Constraint("Vertical", 8, 2, 10, 2),
    Sketcher.Constraint("Vertical", 18, 2, 20, 2),
    Sketcher.Constraint("Vertical", 23, 2, 25, 2),
    Sketcher.Constraint("Diameter", 4, Q("2.5 mm")),
    Sketcher.Constraint("Radius", 2, Q("2.5 mm")),
    Sketcher.Constraint("DistanceX", 1, 2, 1, 1, Q("4.5 mm")),
    Sketcher.Constraint("DistanceX", 0, 2, -1, 1, Q("37 mm")),
    Sketcher.Constraint("DistanceY", 2, 3, 12, 3, Q("43.273111 mm")),
])
pad6 = doc.addObject("PartDesign::Pad", "Pad005")
body.addObject(pad6)
pad6.Profile = sketch9
pad6.Length = 2.5
pad6.Reversed = True

doc.recompute()
